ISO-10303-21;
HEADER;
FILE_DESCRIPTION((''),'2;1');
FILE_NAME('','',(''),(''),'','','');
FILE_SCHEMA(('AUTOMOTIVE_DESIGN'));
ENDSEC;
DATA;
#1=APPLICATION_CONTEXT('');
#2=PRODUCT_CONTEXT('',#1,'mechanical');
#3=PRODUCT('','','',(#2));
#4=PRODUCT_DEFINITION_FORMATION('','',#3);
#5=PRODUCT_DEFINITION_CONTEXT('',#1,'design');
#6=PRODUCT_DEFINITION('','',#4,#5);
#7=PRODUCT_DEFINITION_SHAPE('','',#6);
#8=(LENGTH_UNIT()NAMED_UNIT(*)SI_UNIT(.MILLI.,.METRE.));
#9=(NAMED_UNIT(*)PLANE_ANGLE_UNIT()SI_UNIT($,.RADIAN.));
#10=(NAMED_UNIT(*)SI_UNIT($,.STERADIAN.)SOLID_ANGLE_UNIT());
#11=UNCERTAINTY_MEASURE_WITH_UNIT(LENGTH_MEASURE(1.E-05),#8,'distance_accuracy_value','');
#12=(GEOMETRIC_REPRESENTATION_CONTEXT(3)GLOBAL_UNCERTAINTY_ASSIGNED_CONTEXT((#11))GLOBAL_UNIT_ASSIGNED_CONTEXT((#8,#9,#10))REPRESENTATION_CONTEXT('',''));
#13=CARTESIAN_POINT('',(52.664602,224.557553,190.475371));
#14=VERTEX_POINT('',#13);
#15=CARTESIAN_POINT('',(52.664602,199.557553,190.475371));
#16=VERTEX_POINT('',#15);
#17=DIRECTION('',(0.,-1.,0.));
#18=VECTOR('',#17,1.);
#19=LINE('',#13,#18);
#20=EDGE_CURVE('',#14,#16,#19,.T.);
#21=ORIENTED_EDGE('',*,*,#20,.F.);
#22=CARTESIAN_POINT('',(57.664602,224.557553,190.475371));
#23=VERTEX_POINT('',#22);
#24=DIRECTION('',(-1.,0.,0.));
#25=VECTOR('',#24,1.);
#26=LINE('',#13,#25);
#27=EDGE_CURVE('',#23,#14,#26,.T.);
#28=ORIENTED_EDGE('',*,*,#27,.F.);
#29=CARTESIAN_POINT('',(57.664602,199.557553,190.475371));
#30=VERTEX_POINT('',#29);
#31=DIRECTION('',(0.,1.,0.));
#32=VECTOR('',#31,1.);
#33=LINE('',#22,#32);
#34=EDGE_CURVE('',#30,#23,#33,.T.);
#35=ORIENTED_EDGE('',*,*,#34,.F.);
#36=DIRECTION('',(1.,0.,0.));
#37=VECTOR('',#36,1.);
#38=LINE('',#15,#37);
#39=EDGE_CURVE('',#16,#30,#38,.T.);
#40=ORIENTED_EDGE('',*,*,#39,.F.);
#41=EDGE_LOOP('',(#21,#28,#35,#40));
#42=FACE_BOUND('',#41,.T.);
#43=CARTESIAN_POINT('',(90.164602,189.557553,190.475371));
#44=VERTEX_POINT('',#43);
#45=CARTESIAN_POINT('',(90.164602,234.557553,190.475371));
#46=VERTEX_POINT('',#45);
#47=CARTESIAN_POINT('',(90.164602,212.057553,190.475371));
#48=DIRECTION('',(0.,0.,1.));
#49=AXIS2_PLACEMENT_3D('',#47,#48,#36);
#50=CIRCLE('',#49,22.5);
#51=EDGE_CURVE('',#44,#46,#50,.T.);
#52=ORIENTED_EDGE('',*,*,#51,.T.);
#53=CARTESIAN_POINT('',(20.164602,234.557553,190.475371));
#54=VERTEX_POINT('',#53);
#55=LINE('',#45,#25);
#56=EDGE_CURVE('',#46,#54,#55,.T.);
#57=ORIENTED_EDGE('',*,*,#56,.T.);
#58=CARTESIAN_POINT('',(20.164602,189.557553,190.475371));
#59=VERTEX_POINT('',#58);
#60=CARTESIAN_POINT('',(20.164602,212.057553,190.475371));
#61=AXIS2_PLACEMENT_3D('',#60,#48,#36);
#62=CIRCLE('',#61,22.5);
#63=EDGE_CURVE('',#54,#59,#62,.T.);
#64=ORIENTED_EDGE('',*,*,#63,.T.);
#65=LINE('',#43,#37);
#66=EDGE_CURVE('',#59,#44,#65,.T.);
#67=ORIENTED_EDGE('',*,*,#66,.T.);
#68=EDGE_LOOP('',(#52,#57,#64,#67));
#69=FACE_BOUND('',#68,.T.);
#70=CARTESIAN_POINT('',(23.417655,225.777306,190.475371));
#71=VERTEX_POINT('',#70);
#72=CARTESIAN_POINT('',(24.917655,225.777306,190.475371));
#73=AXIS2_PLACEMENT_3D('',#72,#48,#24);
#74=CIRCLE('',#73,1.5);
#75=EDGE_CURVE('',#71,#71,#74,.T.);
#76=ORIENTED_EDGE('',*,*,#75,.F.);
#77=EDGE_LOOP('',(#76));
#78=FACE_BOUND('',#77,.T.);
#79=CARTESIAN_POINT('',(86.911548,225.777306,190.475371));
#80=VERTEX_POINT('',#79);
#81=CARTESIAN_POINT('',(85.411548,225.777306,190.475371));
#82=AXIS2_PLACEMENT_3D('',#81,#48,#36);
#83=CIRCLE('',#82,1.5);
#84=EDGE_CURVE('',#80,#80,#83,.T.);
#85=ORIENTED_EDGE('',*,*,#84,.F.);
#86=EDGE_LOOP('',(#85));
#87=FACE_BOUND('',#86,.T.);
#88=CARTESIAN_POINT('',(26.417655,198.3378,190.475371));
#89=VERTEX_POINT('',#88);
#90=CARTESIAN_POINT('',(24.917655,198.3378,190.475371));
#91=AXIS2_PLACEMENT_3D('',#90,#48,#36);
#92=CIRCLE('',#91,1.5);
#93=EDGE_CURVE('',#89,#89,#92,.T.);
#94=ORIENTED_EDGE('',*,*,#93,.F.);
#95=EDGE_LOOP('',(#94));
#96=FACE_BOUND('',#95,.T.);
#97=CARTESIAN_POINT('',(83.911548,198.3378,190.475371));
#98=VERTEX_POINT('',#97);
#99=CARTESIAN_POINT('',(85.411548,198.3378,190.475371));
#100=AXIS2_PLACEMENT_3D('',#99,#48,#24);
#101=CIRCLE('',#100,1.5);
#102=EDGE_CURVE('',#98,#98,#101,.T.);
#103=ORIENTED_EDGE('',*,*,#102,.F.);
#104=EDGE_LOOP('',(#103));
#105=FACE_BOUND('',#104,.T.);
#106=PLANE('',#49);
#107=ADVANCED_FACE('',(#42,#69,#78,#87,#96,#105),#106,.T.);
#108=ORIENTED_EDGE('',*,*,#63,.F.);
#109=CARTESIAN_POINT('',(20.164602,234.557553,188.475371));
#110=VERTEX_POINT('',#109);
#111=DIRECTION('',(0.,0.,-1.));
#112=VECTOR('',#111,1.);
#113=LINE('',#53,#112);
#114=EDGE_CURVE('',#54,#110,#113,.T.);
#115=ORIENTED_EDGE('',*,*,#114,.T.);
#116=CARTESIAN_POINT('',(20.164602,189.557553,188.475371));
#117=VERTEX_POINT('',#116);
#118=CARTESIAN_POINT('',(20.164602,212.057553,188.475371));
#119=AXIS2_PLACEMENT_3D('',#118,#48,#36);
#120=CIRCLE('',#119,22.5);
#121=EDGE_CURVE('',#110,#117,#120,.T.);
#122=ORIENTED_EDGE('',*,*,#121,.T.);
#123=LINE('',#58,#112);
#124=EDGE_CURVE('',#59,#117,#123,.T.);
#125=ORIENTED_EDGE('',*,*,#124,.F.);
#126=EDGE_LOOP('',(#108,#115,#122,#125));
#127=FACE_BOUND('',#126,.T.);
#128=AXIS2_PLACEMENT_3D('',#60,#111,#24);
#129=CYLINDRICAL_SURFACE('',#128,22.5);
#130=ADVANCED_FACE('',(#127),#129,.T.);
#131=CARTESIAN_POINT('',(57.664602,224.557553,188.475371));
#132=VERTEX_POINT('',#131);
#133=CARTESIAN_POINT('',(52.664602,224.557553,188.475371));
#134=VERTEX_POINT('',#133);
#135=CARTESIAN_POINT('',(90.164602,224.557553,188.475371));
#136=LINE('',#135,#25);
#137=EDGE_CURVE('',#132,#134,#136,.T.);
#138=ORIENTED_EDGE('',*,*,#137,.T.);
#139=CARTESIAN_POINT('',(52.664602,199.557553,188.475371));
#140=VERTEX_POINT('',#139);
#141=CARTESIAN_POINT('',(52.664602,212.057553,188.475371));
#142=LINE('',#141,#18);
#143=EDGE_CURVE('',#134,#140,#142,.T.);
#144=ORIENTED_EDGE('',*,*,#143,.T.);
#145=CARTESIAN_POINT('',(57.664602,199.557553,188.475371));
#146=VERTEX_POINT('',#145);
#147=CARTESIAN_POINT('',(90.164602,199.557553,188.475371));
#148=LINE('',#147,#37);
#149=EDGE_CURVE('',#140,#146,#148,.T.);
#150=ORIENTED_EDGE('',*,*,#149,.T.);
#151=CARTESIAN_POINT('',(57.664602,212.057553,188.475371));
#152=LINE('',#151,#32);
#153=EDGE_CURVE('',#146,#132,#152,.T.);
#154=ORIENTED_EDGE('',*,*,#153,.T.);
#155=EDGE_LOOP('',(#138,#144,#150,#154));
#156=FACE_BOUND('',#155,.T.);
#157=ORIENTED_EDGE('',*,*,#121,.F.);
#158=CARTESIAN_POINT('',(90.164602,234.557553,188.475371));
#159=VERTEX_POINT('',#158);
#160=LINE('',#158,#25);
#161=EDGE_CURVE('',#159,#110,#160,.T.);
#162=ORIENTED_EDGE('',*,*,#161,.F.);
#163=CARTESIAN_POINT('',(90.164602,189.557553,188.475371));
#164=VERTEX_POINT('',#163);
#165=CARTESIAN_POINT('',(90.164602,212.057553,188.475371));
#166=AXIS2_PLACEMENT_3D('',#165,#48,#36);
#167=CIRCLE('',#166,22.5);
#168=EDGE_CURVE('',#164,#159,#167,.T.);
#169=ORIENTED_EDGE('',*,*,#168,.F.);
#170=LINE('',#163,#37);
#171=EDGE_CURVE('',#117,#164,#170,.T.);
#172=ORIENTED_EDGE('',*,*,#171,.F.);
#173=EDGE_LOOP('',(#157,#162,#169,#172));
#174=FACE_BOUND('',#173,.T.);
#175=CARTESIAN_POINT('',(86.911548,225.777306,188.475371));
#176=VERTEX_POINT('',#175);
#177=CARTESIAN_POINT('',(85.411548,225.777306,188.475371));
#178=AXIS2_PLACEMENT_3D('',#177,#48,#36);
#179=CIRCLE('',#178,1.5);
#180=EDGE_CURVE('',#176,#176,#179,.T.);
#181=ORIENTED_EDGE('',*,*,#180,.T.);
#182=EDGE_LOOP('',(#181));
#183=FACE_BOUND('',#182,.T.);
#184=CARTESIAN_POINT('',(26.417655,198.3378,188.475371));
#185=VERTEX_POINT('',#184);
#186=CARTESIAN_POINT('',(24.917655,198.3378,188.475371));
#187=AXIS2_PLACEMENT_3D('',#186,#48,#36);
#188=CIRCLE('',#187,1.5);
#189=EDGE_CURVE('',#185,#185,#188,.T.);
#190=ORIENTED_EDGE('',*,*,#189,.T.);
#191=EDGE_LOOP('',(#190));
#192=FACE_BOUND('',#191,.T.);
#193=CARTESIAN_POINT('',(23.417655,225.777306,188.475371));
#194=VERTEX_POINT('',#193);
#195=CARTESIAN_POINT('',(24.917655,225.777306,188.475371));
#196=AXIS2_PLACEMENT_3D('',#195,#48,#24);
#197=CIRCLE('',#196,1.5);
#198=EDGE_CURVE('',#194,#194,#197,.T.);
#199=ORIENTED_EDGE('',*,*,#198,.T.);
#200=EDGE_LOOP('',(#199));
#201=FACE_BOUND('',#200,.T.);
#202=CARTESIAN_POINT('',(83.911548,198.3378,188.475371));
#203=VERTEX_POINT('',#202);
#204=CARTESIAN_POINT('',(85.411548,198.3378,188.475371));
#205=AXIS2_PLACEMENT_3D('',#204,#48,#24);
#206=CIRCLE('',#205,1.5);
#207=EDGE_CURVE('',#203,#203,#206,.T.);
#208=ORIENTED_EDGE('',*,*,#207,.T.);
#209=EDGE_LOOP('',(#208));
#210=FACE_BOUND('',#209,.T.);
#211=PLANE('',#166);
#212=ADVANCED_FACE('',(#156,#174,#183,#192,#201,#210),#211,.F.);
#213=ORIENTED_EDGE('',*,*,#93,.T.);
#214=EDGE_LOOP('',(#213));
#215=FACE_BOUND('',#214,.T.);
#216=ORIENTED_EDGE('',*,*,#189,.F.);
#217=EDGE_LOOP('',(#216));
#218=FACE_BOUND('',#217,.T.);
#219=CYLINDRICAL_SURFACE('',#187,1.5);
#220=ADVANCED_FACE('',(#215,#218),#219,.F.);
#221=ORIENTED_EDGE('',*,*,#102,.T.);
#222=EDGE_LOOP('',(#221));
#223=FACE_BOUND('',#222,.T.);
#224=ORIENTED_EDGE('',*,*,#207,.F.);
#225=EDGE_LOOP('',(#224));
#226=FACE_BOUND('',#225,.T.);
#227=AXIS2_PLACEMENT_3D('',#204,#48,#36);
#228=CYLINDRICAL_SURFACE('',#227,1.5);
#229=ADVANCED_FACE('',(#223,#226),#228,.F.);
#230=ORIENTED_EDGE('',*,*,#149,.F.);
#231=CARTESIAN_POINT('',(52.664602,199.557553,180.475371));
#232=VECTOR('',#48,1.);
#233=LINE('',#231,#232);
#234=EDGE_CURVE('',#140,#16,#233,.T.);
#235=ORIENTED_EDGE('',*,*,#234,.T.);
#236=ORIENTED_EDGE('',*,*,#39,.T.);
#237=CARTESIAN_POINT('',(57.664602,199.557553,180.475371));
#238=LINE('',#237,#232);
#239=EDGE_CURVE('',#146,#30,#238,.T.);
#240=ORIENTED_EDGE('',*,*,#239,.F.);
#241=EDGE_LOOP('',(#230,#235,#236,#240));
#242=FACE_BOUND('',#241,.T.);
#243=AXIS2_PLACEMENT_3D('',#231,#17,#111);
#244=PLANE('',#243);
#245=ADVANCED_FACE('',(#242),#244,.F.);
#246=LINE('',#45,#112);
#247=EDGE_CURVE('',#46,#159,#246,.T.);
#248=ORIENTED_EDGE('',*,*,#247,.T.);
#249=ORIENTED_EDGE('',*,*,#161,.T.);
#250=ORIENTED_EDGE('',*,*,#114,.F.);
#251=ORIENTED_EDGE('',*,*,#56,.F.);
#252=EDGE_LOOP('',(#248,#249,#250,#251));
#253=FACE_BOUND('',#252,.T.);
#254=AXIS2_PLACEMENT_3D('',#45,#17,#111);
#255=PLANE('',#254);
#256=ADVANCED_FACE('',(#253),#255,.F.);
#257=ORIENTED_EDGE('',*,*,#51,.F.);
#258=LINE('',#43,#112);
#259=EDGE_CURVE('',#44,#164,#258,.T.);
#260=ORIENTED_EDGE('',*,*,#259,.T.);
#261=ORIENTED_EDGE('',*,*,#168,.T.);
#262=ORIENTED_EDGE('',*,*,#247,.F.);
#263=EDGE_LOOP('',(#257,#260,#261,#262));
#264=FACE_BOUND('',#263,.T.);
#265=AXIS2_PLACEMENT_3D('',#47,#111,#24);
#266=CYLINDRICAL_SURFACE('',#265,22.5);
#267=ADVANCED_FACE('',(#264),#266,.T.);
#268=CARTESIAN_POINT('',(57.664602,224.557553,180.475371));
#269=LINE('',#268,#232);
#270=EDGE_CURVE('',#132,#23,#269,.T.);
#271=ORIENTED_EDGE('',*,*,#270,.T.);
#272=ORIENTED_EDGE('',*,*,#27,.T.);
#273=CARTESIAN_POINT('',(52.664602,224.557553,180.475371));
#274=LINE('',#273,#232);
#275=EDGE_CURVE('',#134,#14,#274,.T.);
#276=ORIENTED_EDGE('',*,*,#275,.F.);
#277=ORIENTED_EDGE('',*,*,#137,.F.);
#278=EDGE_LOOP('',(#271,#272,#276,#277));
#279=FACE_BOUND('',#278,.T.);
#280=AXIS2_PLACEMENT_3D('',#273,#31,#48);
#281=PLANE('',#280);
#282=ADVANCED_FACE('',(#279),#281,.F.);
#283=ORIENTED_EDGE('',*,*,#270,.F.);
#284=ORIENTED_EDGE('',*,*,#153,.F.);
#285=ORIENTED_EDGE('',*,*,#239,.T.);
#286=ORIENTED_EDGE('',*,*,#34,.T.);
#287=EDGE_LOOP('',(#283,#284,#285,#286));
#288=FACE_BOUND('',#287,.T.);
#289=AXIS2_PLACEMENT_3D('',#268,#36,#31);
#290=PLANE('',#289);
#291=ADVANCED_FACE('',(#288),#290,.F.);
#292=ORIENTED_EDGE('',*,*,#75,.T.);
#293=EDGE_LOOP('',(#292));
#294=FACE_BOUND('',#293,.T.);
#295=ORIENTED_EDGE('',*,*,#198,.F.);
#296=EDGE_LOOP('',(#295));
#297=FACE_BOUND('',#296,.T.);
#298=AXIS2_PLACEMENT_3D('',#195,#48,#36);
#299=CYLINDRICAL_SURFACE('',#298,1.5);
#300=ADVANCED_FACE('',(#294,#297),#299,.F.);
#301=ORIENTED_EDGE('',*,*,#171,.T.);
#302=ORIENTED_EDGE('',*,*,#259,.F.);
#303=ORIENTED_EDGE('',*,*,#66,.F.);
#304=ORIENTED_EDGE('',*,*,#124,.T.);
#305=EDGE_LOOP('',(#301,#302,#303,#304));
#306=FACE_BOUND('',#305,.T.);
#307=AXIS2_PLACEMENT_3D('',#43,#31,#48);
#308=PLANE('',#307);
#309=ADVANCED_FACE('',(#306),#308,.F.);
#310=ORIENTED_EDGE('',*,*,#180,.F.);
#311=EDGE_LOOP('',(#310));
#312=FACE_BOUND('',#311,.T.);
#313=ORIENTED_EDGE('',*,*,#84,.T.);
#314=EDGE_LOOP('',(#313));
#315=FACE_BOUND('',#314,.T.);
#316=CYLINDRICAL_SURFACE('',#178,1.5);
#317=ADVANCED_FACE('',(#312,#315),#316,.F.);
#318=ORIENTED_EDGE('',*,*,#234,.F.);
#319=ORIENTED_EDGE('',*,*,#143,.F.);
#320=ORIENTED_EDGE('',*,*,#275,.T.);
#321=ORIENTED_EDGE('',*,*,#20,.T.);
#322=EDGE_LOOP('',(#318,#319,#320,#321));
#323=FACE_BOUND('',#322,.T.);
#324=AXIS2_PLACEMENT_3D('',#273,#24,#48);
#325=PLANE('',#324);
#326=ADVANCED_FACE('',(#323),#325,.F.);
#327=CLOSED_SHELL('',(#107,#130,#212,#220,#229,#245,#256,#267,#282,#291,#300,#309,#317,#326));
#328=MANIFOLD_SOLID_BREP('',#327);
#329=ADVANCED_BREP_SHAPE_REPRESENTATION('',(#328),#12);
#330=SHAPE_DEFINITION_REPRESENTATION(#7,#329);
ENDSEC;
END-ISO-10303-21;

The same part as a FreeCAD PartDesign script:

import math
import FreeCAD as App
import Part
import Sketcher
from FreeCAD import Vector
Q = App.Units.Quantity


def add_polygon(sketch, points):
    """Adds a closed chain of lines whose ends are joined by coincident constraints."""
    first, n = sketch.GeometryCount, len(points)
    for a, b in zip(points, points[1:] + points[:1]):
        sketch.addGeometry(Part.LineSegment(App.Vector(*a, 0), App.Vector(*b, 0)), False)
    for i in range(n):
        sketch.addConstraint(Sketcher.Constraint("Coincident", first + i, 2, first + (i + 1) % n, 1))

doc = App.newDocument("Part")
body = doc.addObject("PartDesign::Body", "Body")

sketch1 = body.newObject("Sketcher::SketchObject", "Sketch")
sketch1.AttachmentSupport = (doc.getObject("XY_Plane"), [""])
sketch1.MapMode = "FlatFace"
sketch1.AttachmentOffset = App.Placement(Vector(0, 0, 188.475371), App.Rotation())
sketch1.addGeometry([
    Part.LineSegment(Vector(20, 190, 0), Vector(90, 190, 0)),
    Part.ArcOfCircle(Part.Circle(Vector(90, 212, 0), Vector(0, 0, 1), 22), math.radians(-90), math.radians(90)),
    Part.LineSegment(Vector(90, 235, 0), Vector(20, 235, 0)),
    Part.ArcOfCircle(Part.Circle(Vector(20, 212, 0), Vector(0, 0, 1), 22), math.radians(90), math.radians(270)),
], False)
sketch1.addConstraint([
    Sketcher.Constraint("Tangent", 0, 2, 1, 1),
    Sketcher.Constraint("Tangent", 1, 2, 2, 1),
    Sketcher.Constraint("Tangent", 2, 2, 3, 1),
    Sketcher.Constraint("Tangent", 3, 2, 0, 1),
    Sketcher.Constraint("Horizontal", 0),
    Sketcher.Constraint("Horizontal", 2),
    Sketcher.Constraint("Radius", 1, Q("22.5 mm")),
    Sketcher.Constraint("DistanceX", 0, 1, 0, 2, Q("70 mm")),
    Sketcher.Constraint("DistanceX", -1, 1, 1, 3, Q("90.164602 mm")),
    Sketcher.Constraint("DistanceY", -1, 1, 1, 3, Q("212.057553 mm")),
])
pad1 = body.newObject("PartDesign::Pad", "Pad")
pad1.Profile = sketch1
pad1.Length = 2

sketch2 = body.newObject("Sketcher::SketchObject", "Sketch001")
sketch2.AttachmentSupport = (doc.getObject("XY_Plane"), [""])
sketch2.MapMode = "FlatFace"
sketch2.AttachmentOffset = App.Placement(Vector(0, 0, 190.475371), App.Rotation())
sketch2.addGeometry([
    Part.Circle(Vector(85.4, 225.8, 0), Vector(0, 0, 1), 1.5),
    Part.Circle(Vector(24.9, 225.8, 0), Vector(0, 0, 1), 1.5),
    Part.Circle(Vector(24.9, 198.3, 0), Vector(0, 0, 1), 1.5),
    Part.Circle(Vector(85.4, 198.3, 0), Vector(0, 0, 1), 1.5),
], False)
sketch2.addConstraint([
    Sketcher.Constraint("Equal", 0, 1),
    Sketcher.Constraint("Equal", 1, 2),
    Sketcher.Constraint("Equal", 2, 3),
    Sketcher.Constraint("Horizontal", 0, 3, 1, 3),
    Sketcher.Constraint("Horizontal", 2, 3, 3, 3),
    Sketcher.Constraint("Vertical", 1, 3, 2, 3),
    Sketcher.Constraint("Vertical", 0, 3, 3, 3),
    Sketcher.Constraint("Diameter", 0, Q("3 mm")),
    Sketcher.Constraint("DistanceY", -1, 1, 2, 3, Q("198.3378 mm")),
    Sketcher.Constraint("DistanceX", -1, 1, 0, 3, Q("85.411548 mm")),
    Sketcher.Constraint("DistanceY", -1, 1, 0, 3, Q("225.777306 mm")),
    Sketcher.Constraint("DistanceX", -1, 1, 1, 3, Q("24.917655 mm")),
])
pocket1 = body.newObject("PartDesign::Pocket", "Pocket")
pocket1.Profile = sketch2
pocket1.Length = 2

sketch3 = body.newObject("Sketcher::SketchObject", "Sketch002")
sketch3.AttachmentSupport = (doc.getObject("XY_Plane"), [""])
sketch3.MapMode = "FlatFace"
sketch3.AttachmentOffset = App.Placement(Vector(0, 0, 190.475371), App.Rotation())
add_polygon(sketch3, [(53, 225), (53, 200), (58, 200), (58, 225)])
sketch3.addConstraint([
    Sketcher.Constraint("Vertical", 0),
    Sketcher.Constraint("Horizontal", 1),
    Sketcher.Constraint("Vertical", 2),
    Sketcher.Constraint("Horizontal", 3),
    Sketcher.Constraint("DistanceX", 1, 1, 1, 2, Q("5 mm")),
    Sketcher.Constraint("DistanceY", 0, 2, 0, 1, Q("25 mm")),
    Sketcher.Constraint("DistanceX", -1, 1, 0, 2, Q("52.664602 mm")),
    Sketcher.Constraint("DistanceY", -1, 1, 0, 2, Q("199.557553 mm")),
])
pocket2 = body.newObject("PartDesign::Pocket", "Pocket001")
pocket2.Profile = sketch3
pocket2.Length = 10

doc.recompute()
